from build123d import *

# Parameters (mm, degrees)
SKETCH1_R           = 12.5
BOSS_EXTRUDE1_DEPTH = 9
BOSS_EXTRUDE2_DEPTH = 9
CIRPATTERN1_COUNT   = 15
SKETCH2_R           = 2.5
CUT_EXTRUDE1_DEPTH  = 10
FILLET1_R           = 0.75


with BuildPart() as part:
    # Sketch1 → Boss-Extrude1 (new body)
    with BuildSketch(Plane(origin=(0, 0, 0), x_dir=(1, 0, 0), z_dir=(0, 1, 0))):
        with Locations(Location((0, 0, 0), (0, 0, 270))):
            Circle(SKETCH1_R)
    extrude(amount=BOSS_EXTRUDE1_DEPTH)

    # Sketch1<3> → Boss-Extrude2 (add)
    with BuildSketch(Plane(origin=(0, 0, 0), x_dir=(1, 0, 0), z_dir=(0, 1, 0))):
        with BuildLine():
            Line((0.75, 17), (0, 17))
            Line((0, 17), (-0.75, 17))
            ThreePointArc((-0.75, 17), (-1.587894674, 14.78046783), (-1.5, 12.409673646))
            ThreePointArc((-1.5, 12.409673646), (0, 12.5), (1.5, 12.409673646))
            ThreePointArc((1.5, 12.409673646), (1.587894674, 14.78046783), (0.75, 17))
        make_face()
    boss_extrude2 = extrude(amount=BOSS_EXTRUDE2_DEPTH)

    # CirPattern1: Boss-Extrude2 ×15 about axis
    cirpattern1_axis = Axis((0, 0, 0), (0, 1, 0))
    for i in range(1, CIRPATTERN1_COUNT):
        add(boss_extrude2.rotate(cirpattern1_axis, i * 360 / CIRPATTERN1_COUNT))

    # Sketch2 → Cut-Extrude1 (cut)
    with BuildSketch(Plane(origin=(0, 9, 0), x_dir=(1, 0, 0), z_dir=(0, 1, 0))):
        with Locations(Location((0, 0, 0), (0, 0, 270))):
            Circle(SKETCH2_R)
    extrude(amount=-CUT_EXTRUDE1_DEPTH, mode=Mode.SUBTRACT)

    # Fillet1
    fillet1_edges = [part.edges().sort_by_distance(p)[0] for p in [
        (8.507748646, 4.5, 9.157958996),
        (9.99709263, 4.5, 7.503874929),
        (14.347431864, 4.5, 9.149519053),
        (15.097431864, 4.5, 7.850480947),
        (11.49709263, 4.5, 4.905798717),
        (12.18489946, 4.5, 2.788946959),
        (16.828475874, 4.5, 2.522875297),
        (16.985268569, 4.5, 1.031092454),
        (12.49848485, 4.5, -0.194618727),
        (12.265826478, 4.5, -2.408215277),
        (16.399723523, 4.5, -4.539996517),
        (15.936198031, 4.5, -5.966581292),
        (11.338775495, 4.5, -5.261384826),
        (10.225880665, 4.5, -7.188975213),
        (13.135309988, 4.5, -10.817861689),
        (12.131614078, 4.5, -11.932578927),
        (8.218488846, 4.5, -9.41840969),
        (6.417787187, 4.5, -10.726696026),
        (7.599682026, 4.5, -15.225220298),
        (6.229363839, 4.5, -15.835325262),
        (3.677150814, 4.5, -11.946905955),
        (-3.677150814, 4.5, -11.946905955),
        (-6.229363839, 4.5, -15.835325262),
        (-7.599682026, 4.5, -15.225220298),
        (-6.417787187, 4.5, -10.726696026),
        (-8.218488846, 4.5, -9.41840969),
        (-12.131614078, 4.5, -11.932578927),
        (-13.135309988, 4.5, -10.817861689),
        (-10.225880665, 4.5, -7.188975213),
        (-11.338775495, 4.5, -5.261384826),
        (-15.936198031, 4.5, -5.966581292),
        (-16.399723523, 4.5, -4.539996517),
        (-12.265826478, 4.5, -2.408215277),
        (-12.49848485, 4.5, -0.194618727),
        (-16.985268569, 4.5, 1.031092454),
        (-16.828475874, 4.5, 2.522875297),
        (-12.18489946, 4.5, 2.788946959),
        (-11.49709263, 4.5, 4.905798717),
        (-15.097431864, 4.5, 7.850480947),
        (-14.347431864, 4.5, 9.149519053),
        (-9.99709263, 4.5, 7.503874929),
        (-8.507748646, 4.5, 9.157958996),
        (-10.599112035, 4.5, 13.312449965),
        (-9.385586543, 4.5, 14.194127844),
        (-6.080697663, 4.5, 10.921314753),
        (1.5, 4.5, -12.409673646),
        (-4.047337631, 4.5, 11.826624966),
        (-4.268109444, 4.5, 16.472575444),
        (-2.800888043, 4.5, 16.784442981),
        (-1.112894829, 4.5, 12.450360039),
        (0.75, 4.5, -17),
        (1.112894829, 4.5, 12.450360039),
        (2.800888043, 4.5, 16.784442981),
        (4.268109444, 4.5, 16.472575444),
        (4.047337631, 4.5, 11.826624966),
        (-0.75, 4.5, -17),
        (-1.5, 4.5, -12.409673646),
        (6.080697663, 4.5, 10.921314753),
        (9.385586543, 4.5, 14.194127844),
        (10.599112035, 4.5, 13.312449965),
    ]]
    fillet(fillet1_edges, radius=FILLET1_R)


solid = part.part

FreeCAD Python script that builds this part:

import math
import FreeCAD as App
import Part
import Sketcher

V = App.Vector
Q = App.Units.Quantity


def edges_at(feature, points):
    """Names of the edges that pass closest to the given points."""
    edges = feature.Shape.Edges
    near = lambda p: min(range(len(edges)), key=lambda i: edges[i].distToShape(Part.Vertex(*p))[0])
    return sorted({f"Edge{near(p) + 1}" for p in points})

doc = App.newDocument("Part")
params = doc.addObject("Spreadsheet::Sheet", "Params")
for row, (alias, value) in enumerate([
    ("sketch1_diameter", "25 mm"),
    ("pad1_length", "9 mm"),
    ("sketch2_radius", "6 mm"),
    ("sketch2_radius2", "12.5 mm"),
    ("sketch2_width", "1.5 mm"),
    ("pad2_length", "9 mm"),
    ("sketch3_diameter", "5 mm"),
    ("pocket1_length", "10 mm"),
    ("fillet_radius", "0.75 mm"),
], start=1):
    params.set(f"A{row}", alias)
    params.set(f"B{row}", "=" + value)
    params.setAlias(f"B{row}", alias)

body = doc.addObject("PartDesign::Body", "Body")

sketch1 = body.newObject("Sketcher::SketchObject", "Sketch")
sketch1.AttachmentSupport = (doc.getObject("XZ_Plane"), [""])
sketch1.MapMode = "FlatFace"
sketch1.addGeometry(Part.Circle(V(0, 0, 0), V(0, 0, 1), 12), False)
sketch1.addConstraint([
    Sketcher.Constraint("Coincident", 0, 3, -1, 1),
    Sketcher.Constraint("Diameter", 0, Q("25 mm")),
])
sketch1.setExpression("Constraints[1]", "Params.sketch1_diameter")
pad1 = body.newObject("PartDesign::Pad", "Pad")
pad1.Profile = sketch1
pad1.setExpression("Length", "Params.pad1_length")
pad1.Reversed = True

sketch2 = body.newObject("Sketcher::SketchObject", "Sketch001")
sketch2.AttachmentSupport = (doc.getObject("XZ_Plane"), [""])
sketch2.MapMode = "FlatFace"
sketch2.addGeometry([
    Part.LineSegment(V(0.8, -17, 0), V(-0.8, -17, 0)),
    Part.ArcOfCircle(Part.Circle(V(4.3, -13.8, 0), V(0, 0, 1), 6), math.radians(166), math.radians(212)),
    Part.ArcOfCircle(Part.Circle(V(0, 0, 0), V(0, 0, 1), 12.5), math.radians(-96.89), math.radians(-83.11)),
    Part.ArcOfCircle(Part.Circle(V(-4.3, -13.8, 0), V(0, 0, 1), 6), math.radians(-32), math.radians(14)),
], False)
sketch2.addConstraint([
    Sketcher.Constraint("Coincident", 0, 2, 1, 2),
    Sketcher.Constraint("Coincident", 1, 1, 2, 1),
    Sketcher.Constraint("Coincident", 2, 2, 3, 2),
    Sketcher.Constraint("Coincident", 3, 1, 0, 1),
    Sketcher.Constraint("Horizontal", 0),
    Sketcher.Constraint("Coincident", 2, 3, -1, 1),
    Sketcher.Constraint("Equal", 1, 3),
    Sketcher.Constraint("Symmetric", 1, 3, 3, 3, -2),
    Sketcher.Constraint("Radius", 1, Q("6 mm")),
    Sketcher.Constraint("Radius", 2, Q("12.5 mm")),
    Sketcher.Constraint("DistanceX", 0, 2, 0, 1, Q("1.5 mm")),
    Sketcher.Constraint("DistanceY", 0, 2, -1, 1, Q("17 mm")),
    Sketcher.Constraint("DistanceX", 1, 1, 2, 2, Q("3 mm")),
])
sketch2.setExpression("Constraints[8]", "Params.sketch2_radius")
sketch2.setExpression("Constraints[9]", "Params.sketch2_radius2")
sketch2.setExpression("Constraints[10]", "Params.sketch2_width")
pad2 = body.newObject("PartDesign::Pad", "Pad001")
pad2.Profile = sketch2
pad2.setExpression("Length", "Params.pad2_length")
pad2.Reversed = True
doc.recompute()

polarpattern = body.newObject("PartDesign::PolarPattern", "PolarPattern")
polarpattern.Originals = [pad2]
polarpattern.Axis = (doc.getObject("Y_Axis"), [""])
polarpattern.Angle = 360
polarpattern.Occurrences = 15
body.Tip = polarpattern

sketch3 = body.newObject("Sketcher::SketchObject", "Sketch002")
sketch3.AttachmentSupport = (doc.getObject("XZ_Plane"), [""])
sketch3.MapMode = "FlatFace"
sketch3.AttachmentOffset = App.Placement(V(0, 0, -9), App.Rotation())
sketch3.addGeometry(Part.Circle(V(0, 0, 0), V(0, 0, 1), 2.5), False)
sketch3.addConstraint([
    Sketcher.Constraint("Coincident", 0, 3, -1, 1),
    Sketcher.Constraint("Diameter", 0, Q("5 mm")),
])
sketch3.setExpression("Constraints[1]", "Params.sketch3_diameter")
pocket1 = body.newObject("PartDesign::Pocket", "Pocket")
pocket1.Profile = sketch3
pocket1.setExpression("Length", "Params.pocket1_length")
pocket1.Reversed = True
doc.recompute()

fillet = body.newObject("PartDesign::Fillet", "Fillet")
fillet.Base = (pocket1, edges_at(pocket1, [
    (8.508, 4.5, 9.158),
    (9.997, 4.5, 7.504),
    (14.347, 4.5, 9.15),
    (15.097, 4.5, 7.85),
    (11.497, 4.5, 4.906),
    (12.185, 4.5, 2.789),
    (16.828, 4.5, 2.523),
    (16.985, 4.5, 1.031),
    (12.498, 4.5, -0.195),
    (12.266, 4.5, -2.408),
    (16.4, 4.5, -4.54),
    (15.936, 4.5, -5.967),
    (11.339, 4.5, -5.261),
    (10.226, 4.5, -7.189),
    (13.135, 4.5, -10.818),
    (12.132, 4.5, -11.933),
    (8.218, 4.5, -9.418),
    (6.418, 4.5, -10.727),
    (7.6, 4.5, -15.225),
    (6.229, 4.5, -15.835),
    (3.677, 4.5, -11.947),
    (-3.677, 4.5, -11.947),
    (-6.229, 4.5, -15.835),
    (-7.6, 4.5, -15.225),
    (-6.418, 4.5, -10.727),
    (-8.218, 4.5, -9.418),
    (-12.132, 4.5, -11.933),
    (-13.135, 4.5, -10.818),
    (-10.226, 4.5, -7.189),
    (-11.339, 4.5, -5.261),
    (-15.936, 4.5, -5.967),
    (-16.4, 4.5, -4.54),
    (-12.266, 4.5, -2.408),
    (-12.498, 4.5, -0.195),
    (-16.985, 4.5, 1.031),
    (-16.828, 4.5, 2.523),
    (-12.185, 4.5, 2.789),
    (-11.497, 4.5, 4.906),
    (-15.097, 4.5, 7.85),
    (-14.347, 4.5, 9.15),
    (-9.997, 4.5, 7.504),
    (-8.508, 4.5, 9.158),
    (-10.599, 4.5, 13.312),
    (-9.386, 4.5, 14.194),
    (-6.081, 4.5, 10.921),
    (1.5, 4.5, -12.41),
    (-4.047, 4.5, 11.827),
    (-4.268, 4.5, 16.473),
    (-2.801, 4.5, 16.784),
    (-1.113, 4.5, 12.45),
    (0.75, 4.5, -17),
    (1.113, 4.5, 12.45),
    (2.801, 4.5, 16.784),
    (4.268, 4.5, 16.473),
    (4.047, 4.5, 11.827),
    (-0.75, 4.5, -17),
    (-1.5, 4.5, -12.41),
    (6.081, 4.5, 10.921),
    (9.386, 4.5, 14.194),
    (10.599, 4.5, 13.312),
]))
fillet.setExpression("Radius", "Params.fillet_radius")

doc.recompute()
